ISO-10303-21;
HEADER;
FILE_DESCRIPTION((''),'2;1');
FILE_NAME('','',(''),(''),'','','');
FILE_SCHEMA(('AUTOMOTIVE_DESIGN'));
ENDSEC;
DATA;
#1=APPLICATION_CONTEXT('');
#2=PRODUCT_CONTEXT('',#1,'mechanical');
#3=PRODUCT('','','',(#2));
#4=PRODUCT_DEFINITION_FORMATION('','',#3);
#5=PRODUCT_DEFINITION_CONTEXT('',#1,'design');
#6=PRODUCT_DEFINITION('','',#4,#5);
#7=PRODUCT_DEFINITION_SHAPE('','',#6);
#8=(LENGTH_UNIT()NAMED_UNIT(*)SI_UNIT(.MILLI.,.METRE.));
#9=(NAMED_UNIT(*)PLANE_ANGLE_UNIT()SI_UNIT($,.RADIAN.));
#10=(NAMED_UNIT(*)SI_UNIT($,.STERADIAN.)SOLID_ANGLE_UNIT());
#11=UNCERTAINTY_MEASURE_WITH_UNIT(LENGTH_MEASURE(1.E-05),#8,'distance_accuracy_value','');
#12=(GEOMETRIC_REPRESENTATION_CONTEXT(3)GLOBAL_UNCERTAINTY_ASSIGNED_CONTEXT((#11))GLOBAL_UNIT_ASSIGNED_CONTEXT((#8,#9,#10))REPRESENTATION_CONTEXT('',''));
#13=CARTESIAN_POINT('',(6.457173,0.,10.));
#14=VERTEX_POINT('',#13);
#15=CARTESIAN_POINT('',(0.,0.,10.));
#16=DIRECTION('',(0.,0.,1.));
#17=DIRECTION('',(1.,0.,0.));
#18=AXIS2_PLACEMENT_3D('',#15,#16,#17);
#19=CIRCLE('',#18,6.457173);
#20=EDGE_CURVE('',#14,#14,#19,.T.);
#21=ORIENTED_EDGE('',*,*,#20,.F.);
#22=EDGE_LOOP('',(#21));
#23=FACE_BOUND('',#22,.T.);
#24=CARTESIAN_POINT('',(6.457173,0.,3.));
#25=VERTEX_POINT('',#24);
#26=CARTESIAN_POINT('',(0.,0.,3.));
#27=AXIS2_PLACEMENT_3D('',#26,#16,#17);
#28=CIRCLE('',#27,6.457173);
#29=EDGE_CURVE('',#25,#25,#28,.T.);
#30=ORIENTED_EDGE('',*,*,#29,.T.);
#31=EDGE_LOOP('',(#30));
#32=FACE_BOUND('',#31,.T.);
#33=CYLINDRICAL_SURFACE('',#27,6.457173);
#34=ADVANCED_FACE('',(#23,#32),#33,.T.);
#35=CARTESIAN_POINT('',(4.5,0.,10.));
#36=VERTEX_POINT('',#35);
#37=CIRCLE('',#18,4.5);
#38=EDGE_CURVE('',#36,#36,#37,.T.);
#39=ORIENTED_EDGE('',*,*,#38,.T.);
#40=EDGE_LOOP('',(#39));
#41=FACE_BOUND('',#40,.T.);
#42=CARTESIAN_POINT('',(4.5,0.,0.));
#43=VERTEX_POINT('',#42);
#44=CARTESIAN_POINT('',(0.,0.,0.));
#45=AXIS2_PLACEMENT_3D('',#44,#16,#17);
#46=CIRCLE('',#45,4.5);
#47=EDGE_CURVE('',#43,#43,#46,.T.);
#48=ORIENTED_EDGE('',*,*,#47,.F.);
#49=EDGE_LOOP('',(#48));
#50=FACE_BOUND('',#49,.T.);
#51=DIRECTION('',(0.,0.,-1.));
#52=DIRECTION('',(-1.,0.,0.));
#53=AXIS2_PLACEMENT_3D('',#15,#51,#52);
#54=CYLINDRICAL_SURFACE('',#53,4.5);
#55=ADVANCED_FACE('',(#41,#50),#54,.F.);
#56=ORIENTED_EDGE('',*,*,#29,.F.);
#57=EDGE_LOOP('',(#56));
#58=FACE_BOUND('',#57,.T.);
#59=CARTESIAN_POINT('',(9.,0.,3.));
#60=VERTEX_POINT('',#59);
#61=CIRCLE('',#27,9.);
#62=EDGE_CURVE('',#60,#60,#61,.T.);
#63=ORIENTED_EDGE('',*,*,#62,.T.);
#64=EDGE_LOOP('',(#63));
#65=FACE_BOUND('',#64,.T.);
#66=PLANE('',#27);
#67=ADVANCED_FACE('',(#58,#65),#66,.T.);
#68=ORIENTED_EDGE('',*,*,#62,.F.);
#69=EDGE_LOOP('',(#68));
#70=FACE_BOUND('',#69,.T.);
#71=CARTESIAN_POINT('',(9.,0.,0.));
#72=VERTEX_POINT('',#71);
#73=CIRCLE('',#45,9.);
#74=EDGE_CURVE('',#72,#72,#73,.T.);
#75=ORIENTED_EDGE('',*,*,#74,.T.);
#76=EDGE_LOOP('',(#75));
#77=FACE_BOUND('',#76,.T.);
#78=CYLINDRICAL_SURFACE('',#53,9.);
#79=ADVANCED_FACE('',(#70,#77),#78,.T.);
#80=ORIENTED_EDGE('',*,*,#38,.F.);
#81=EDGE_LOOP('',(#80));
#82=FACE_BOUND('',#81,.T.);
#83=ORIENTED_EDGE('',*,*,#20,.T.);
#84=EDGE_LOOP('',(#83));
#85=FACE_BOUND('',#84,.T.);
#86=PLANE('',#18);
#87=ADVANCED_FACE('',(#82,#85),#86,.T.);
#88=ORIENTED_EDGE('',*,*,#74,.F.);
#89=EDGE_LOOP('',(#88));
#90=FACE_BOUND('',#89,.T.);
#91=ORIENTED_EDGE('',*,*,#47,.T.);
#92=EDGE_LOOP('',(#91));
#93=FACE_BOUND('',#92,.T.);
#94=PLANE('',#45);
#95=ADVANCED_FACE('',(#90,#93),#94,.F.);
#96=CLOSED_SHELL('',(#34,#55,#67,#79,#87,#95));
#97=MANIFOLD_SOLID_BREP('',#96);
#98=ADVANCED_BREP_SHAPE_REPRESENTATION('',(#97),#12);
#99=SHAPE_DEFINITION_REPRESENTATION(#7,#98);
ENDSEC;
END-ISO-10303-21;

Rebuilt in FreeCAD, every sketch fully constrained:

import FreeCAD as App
import Part
import Sketcher
from FreeCAD import Vector
Q = App.Units.Quantity

doc = App.newDocument("Part")
body = doc.addObject("PartDesign::Body", "Body")

sketch1 = body.newObject("Sketcher::SketchObject", "Sketch")
sketch1.AttachmentSupport = (doc.getObject("XY_Plane"), [""])
sketch1.MapMode = "FlatFace"
sketch1.addGeometry(Part.Circle(Vector(0, 0, 0), Vector(0, 0, 1), 9), False)
sketch1.addGeometry(Part.Circle(Vector(0, 0, 0), Vector(0, 0, 1), 4.5), False)
sketch1.addConstraint(Sketcher.Constraint("Coincident", 0, 3, -1, 1))
sketch1.addConstraint(Sketcher.Constraint("Coincident", 1, 3, -1, 1))
sketch1.addConstraint(Sketcher.Constraint("Diameter", 0, Q("18 mm")))
sketch1.addConstraint(Sketcher.Constraint("Diameter", 1, Q("9 mm")))
pad1 = body.newObject("PartDesign::Pad", "Pad")
pad1.Profile = sketch1
pad1.Length = 10

sketch2 = body.newObject("Sketcher::SketchObject", "Sketch001")
sketch2.AttachmentSupport = (doc.getObject("XY_Plane"), [""])
sketch2.MapMode = "FlatFace"
sketch2.AttachmentOffset = App.Placement(Vector(0, 0, 3), App.Rotation())
sketch2.addGeometry(Part.Circle(Vector(0, 0, 0), Vector(0, 0, 1), 9), False)
sketch2.addGeometry(Part.Circle(Vector(0, 0, 0), Vector(0, 0, 1), 6), False)
sketch2.addConstraint(Sketcher.Constraint("Coincident", 0, 3, -1, 1))
sketch2.addConstraint(Sketcher.Constraint("Coincident", 1, 3, -1, 1))
sketch2.addConstraint(Sketcher.Constraint("Diameter", 0, Q("18 mm")))
sketch2.addConstraint(Sketcher.Constraint("Diameter", 1, Q("12.914346 mm")))
pocket1 = body.newObject("PartDesign::Pocket", "Pocket")
pocket1.Profile = sketch2
pocket1.Length = 7
pocket1.Reversed = True

doc.recompute()
